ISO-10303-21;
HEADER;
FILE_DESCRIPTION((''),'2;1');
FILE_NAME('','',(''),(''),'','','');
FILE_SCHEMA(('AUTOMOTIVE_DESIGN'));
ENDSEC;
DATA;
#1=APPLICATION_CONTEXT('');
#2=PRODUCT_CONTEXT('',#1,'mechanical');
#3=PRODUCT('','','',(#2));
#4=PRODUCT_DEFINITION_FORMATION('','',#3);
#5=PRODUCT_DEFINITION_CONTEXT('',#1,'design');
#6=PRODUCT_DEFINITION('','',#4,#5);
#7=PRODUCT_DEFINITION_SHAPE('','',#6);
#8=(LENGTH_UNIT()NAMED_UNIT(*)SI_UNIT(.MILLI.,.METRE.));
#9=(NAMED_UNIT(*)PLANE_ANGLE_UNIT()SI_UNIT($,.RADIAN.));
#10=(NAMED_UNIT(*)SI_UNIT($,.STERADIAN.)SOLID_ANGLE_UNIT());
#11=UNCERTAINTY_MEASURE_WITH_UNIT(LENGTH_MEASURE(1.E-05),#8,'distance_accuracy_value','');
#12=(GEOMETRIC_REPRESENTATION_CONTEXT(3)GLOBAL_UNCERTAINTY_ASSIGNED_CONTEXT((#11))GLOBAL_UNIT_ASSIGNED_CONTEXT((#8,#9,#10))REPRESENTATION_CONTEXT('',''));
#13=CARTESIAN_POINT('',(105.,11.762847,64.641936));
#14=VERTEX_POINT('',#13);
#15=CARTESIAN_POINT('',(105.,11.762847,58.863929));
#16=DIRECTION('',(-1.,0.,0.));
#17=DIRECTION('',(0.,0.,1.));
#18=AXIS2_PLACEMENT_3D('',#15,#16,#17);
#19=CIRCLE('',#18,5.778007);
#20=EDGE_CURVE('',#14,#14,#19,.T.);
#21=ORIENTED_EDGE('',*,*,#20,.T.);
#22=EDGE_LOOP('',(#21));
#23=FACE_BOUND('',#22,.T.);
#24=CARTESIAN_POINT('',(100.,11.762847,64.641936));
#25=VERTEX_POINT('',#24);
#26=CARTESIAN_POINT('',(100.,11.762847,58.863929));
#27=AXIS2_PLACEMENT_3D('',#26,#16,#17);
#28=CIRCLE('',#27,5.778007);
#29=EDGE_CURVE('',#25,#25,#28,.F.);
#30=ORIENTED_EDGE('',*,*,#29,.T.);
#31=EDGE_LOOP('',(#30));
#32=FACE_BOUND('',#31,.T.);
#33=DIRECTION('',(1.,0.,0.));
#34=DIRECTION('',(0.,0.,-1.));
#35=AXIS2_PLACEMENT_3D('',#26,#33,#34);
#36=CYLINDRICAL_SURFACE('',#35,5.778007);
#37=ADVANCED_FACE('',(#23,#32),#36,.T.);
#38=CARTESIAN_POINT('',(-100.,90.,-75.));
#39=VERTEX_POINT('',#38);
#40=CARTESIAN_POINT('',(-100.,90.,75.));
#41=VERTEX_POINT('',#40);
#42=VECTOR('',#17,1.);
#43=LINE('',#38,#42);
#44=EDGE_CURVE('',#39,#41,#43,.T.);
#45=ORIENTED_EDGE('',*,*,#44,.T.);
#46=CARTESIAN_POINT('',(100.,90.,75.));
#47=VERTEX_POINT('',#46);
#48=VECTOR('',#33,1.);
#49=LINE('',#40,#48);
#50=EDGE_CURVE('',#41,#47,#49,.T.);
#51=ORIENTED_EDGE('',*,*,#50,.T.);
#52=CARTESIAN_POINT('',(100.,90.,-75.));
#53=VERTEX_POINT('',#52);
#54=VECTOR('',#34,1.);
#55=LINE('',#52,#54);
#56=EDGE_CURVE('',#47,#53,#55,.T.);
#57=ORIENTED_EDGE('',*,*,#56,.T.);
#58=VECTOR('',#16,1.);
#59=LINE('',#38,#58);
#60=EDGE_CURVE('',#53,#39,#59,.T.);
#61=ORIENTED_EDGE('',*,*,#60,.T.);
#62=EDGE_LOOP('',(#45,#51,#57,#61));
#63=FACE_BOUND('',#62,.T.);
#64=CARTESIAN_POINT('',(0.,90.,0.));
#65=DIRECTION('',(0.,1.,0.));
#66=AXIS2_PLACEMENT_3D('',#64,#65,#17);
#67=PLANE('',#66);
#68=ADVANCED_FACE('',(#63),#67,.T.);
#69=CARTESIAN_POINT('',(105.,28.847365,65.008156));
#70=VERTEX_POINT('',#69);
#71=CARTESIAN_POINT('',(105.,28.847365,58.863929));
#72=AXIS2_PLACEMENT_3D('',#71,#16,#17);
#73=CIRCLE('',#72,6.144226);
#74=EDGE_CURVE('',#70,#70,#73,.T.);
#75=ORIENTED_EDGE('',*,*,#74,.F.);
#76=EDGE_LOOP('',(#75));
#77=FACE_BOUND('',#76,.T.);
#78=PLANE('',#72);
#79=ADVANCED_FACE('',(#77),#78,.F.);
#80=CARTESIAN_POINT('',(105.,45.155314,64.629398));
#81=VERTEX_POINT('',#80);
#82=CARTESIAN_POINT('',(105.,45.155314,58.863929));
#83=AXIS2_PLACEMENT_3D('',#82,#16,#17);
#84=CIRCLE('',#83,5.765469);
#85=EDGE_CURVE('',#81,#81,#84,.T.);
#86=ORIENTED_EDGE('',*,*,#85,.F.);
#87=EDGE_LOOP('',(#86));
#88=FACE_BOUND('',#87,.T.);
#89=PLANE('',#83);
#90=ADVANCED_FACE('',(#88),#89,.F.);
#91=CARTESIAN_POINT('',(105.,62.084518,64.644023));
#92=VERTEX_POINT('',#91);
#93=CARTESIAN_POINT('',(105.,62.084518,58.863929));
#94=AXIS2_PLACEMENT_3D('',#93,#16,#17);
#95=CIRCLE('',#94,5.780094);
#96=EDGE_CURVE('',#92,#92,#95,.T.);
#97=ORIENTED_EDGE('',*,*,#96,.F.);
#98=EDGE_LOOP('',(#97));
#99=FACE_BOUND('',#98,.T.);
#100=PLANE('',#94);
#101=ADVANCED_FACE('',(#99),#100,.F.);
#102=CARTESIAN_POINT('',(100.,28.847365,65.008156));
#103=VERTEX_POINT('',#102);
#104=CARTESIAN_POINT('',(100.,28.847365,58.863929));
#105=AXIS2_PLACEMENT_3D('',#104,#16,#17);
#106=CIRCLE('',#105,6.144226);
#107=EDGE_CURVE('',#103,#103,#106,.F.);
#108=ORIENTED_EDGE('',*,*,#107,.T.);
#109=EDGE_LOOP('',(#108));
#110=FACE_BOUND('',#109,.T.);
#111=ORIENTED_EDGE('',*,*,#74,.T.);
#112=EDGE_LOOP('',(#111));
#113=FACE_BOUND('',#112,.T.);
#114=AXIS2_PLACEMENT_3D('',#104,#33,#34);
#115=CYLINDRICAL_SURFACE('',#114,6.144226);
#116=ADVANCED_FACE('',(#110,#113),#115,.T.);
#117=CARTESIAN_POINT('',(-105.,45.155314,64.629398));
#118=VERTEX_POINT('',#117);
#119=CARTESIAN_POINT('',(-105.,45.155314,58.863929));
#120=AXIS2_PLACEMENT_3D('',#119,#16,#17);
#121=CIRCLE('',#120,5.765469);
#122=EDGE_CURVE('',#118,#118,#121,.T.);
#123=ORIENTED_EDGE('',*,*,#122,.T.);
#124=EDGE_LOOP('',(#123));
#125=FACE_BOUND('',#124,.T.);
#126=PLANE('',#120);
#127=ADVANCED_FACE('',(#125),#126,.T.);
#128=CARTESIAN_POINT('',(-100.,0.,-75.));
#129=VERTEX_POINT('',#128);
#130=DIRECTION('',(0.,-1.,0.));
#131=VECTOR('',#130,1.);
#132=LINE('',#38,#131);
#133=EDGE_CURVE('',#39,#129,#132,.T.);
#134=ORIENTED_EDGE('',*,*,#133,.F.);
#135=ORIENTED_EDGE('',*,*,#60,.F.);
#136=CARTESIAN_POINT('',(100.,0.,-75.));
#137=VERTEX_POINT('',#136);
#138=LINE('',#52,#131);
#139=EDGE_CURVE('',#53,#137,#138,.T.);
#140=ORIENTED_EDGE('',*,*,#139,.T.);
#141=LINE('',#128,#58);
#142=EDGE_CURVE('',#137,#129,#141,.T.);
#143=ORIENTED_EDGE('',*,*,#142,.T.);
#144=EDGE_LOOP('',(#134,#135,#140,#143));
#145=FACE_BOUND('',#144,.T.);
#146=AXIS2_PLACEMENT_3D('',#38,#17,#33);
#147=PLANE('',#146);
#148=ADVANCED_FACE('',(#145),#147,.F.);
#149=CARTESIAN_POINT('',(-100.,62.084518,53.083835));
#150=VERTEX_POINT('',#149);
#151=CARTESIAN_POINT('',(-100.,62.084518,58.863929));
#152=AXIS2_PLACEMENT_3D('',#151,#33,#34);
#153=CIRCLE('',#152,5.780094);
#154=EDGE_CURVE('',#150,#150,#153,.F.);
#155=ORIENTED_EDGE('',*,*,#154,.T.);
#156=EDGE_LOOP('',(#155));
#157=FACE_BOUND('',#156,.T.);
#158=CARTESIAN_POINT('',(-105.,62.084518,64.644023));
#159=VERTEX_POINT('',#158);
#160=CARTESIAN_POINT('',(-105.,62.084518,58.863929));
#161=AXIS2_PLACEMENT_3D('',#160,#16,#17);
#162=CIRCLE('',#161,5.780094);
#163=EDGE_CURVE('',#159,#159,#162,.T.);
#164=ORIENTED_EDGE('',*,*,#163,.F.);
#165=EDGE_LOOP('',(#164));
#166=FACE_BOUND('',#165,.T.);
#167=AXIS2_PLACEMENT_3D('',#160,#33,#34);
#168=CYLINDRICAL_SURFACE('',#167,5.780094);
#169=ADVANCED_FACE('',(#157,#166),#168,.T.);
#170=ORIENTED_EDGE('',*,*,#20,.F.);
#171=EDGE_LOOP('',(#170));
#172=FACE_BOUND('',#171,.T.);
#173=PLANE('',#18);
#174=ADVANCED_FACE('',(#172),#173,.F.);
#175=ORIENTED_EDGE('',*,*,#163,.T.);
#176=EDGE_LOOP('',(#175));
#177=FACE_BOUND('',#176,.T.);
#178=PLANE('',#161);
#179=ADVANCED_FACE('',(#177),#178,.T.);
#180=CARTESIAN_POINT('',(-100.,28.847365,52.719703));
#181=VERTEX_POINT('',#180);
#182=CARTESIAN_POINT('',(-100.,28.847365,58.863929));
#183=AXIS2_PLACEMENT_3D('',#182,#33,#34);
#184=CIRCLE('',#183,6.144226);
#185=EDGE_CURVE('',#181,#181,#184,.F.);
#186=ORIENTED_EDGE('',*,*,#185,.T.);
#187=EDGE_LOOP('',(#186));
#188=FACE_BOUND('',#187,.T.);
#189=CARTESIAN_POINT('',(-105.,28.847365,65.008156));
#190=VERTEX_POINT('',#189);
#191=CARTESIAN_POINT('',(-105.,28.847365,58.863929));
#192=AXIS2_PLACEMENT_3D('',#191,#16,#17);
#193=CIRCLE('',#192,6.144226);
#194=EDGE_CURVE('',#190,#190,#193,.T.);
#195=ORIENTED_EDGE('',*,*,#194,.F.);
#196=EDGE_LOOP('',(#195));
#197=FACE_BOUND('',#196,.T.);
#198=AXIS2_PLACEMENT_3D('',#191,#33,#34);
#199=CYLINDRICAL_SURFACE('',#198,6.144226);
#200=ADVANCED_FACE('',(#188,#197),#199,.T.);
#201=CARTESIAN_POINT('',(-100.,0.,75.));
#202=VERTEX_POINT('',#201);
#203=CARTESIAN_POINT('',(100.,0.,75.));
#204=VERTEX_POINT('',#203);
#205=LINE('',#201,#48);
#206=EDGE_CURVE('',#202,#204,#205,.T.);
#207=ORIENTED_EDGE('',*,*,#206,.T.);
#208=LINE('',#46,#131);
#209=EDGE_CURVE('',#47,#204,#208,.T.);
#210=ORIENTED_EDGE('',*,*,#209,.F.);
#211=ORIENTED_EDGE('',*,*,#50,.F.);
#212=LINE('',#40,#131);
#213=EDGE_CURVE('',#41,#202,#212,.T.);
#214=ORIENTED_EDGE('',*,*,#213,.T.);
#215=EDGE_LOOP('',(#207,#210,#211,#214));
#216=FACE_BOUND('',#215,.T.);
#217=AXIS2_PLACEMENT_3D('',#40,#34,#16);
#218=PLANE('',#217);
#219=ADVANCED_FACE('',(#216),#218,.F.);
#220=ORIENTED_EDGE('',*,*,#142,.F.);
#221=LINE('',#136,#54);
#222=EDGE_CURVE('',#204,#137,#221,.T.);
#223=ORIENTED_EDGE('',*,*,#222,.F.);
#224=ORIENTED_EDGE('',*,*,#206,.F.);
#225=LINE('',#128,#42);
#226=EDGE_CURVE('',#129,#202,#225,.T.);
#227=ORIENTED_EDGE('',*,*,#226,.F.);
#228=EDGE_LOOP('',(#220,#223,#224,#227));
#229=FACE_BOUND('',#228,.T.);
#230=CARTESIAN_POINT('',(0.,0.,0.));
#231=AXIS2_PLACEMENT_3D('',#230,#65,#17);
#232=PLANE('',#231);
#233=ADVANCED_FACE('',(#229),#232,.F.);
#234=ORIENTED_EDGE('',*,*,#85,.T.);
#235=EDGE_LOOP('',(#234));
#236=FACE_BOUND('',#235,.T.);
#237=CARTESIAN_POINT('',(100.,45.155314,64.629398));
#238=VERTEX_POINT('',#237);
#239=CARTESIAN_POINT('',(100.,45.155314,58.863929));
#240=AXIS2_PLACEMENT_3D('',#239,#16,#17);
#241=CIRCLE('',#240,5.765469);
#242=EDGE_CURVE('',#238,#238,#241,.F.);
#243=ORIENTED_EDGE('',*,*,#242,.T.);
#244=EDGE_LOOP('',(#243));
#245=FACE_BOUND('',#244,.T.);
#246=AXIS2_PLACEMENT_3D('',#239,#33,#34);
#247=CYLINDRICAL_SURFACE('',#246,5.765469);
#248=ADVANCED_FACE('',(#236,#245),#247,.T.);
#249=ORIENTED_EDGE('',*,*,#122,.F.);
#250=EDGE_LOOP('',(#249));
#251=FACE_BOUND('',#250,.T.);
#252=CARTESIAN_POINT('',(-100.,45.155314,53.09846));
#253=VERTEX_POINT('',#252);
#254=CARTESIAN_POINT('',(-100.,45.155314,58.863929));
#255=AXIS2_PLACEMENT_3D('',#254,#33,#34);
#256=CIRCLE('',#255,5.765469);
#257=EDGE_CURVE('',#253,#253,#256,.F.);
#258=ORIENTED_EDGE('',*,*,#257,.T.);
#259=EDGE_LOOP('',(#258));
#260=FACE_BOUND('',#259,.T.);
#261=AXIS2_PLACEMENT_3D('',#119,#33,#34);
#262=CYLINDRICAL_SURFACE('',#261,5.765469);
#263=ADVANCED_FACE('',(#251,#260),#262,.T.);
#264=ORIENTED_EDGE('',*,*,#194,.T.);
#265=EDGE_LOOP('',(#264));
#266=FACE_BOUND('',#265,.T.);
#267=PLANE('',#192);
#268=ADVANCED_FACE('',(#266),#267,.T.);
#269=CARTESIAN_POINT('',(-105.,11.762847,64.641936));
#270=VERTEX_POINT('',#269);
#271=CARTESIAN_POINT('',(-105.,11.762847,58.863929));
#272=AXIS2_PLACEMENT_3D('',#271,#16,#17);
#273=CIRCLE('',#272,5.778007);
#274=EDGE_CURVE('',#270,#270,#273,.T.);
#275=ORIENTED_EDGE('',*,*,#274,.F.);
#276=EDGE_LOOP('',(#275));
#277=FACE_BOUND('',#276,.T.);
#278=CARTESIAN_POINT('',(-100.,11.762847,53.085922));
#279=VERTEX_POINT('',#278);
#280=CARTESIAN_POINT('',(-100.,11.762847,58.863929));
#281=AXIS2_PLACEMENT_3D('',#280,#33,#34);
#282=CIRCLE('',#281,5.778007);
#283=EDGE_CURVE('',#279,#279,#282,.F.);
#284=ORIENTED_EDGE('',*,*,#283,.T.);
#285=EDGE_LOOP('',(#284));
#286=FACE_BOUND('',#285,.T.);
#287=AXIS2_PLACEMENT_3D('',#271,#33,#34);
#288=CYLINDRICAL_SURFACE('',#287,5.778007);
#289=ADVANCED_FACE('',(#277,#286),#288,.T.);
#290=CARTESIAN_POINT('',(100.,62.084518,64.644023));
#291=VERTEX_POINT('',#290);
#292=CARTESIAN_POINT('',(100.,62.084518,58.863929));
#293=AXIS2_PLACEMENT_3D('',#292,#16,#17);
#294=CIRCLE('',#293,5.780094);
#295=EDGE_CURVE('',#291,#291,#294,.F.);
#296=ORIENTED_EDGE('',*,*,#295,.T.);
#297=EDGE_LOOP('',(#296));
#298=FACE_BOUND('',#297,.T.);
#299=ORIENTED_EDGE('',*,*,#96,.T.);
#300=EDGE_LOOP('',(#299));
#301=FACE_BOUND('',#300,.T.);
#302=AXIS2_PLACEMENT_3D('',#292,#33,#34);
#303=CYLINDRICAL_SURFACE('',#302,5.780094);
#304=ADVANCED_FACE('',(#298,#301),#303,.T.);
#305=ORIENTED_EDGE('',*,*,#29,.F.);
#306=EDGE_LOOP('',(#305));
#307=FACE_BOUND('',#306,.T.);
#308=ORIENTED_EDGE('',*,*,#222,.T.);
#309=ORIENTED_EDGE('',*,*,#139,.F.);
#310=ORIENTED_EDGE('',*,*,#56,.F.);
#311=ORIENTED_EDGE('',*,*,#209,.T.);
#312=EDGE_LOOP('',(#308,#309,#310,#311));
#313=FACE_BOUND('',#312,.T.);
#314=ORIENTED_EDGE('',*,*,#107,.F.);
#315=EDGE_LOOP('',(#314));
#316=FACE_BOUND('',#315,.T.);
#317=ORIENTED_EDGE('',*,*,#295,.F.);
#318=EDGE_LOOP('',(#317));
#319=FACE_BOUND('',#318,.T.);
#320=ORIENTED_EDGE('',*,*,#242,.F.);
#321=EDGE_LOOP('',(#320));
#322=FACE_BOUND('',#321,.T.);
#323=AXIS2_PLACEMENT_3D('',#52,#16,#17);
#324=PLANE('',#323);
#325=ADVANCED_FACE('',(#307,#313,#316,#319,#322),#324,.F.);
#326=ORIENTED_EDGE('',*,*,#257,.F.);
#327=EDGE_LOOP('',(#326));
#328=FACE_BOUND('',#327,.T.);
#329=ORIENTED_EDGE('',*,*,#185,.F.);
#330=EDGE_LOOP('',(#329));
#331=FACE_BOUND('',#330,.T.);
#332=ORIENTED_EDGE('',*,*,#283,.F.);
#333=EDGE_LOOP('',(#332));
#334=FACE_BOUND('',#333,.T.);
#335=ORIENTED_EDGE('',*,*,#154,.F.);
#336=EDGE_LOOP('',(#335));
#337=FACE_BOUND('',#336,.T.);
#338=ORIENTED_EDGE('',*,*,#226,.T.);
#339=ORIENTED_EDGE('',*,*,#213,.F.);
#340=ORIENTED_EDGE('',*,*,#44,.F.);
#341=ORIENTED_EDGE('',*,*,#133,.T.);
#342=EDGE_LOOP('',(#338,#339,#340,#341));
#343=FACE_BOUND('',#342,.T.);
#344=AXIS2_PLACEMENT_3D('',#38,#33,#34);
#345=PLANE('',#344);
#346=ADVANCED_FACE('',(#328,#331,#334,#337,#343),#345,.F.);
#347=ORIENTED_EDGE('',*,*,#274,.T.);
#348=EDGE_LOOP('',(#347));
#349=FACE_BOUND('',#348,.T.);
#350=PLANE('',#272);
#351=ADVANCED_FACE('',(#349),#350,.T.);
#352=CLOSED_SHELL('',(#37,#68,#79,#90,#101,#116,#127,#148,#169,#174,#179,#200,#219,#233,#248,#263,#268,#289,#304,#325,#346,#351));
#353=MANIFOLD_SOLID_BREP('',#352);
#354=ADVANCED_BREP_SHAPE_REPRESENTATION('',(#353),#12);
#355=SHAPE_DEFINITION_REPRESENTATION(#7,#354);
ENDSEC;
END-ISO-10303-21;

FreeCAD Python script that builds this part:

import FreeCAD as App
import Part
import Sketcher

V = App.Vector


def add_polygon(sketch, points):
    """Adds a closed chain of lines whose ends are joined by coincident constraints."""
    first, n = sketch.GeometryCount, len(points)
    for a, b in zip(points, points[1:] + points[:1]):
        sketch.addGeometry(Part.LineSegment(App.Vector(*a, 0), App.Vector(*b, 0)), False)
    for i in range(n):
        sketch.addConstraint(Sketcher.Constraint("Coincident", first + i, 2, first + (i + 1) % n, 1))

doc = App.newDocument("Part")
params = doc.addObject("Spreadsheet::Sheet", "Params")
for row, (alias, value) in enumerate([
    ("sketch1_width", "200 mm"),
    ("sketch1_height", "150 mm"),
    ("pad1_length", "90 mm"),
    ("pad2_length", "5 mm"),
    ("pad3_length", "5 mm"),
], start=1):
    params.set(f"A{row}", alias)
    params.set(f"B{row}", "=" + value)
    params.setAlias(f"B{row}", alias)

body = doc.addObject("PartDesign::Body", "Body")

# Sketch on XZ plane
sketch1 = body.newObject("Sketcher::SketchObject", "Sketch")
sketch1.AttachmentSupport = (doc.getObject("XZ_Plane"), [""])
sketch1.MapMode = "FlatFace"
add_polygon(sketch1, [(-100, -75), (-100, 75), (100, 75), (100, -75)])  # lines 0-3
sketch1.addConstraint([
    Sketcher.Constraint("Vertical", 0),
    Sketcher.Constraint("Horizontal", 1),
    Sketcher.Constraint("Vertical", 2),
    Sketcher.Constraint("Horizontal", 3),
    Sketcher.Constraint("Symmetric", 0, 2, 2, 2, -1, 1),
    Sketcher.Constraint("DistanceX", 1, 1, 1, 2, 200.0),
    Sketcher.Constraint("DistanceY", 0, 1, 0, 2, 150.0),
])
sketch1.setExpression("Constraints[9]", "Params.sketch1_width")
sketch1.setExpression("Constraints[10]", "Params.sketch1_height")
pad1 = body.newObject("PartDesign::Pad", "Pad")
pad1.Profile = sketch1
pad1.setExpression("Length", "Params.pad1_length")
pad1.Reversed = True

# Sketch on YZ plane
sketch2 = body.newObject("Sketcher::SketchObject", "Sketch001")
sketch2.AttachmentSupport = (doc.getObject("YZ_Plane"), [""])
sketch2.MapMode = "FlatFace"
sketch2.AttachmentOffset = App.Placement(V(0, 0, -100), App.Rotation())
sketch2.addGeometry([
    Part.Circle(V(11.762847, 58.863929, 0), V(0, 0, 1), 5.778007),
    Part.Circle(V(28.847365, 58.863929, 0), V(0, 0, 1), 6.144226),
    Part.Circle(V(45.155314, 58.863929, 0), V(0, 0, 1), 5.765469),
    Part.Circle(V(62.084518, 58.863929, 0), V(0, 0, 1), 5.780094),
], False)
sketch2.addConstraint([
    Sketcher.Constraint("Horizontal", 0, 3, 1, 3),
    Sketcher.Constraint("Horizontal", 1, 3, 2, 3),
    Sketcher.Constraint("Horizontal", 2, 3, 3, 3),
    Sketcher.Constraint("Diameter", 2, 11.530938),
    Sketcher.Constraint("Diameter", 3, 11.560189),
    Sketcher.Constraint("Diameter", 0, 11.556015),
    Sketcher.Constraint("Diameter", 1, 12.288453),
    Sketcher.Constraint("DistanceY", -1, 1, 0, 3, 58.863929),
    Sketcher.Constraint("DistanceX", 1, 3, 2, 3, 16.307949),
    Sketcher.Constraint("DistanceX", 0, 3, 3, 3, 50.32167),
    Sketcher.Constraint("DistanceX", -1, 1, 0, 3, 11.762847),
    Sketcher.Constraint("DistanceX", -1, 1, 1, 3, 28.847365),
])
pad2 = body.newObject("PartDesign::Pad", "Pad001")
pad2.Profile = sketch2
pad2.setExpression("Length", "Params.pad2_length")
pad2.Reversed = True

# Sketch on YZ plane
sketch3 = body.newObject("Sketcher::SketchObject", "Sketch002")
sketch3.AttachmentSupport = (doc.getObject("YZ_Plane"), [""])
sketch3.MapMode = "FlatFace"
sketch3.AttachmentOffset = App.Placement(V(0, 0, 105), App.Rotation())
sketch3.addGeometry([
    Part.Circle(V(11.762847, 58.863929, 0), V(0, 0, 1), 5.778007),
    Part.Circle(V(28.847365, 58.863929, 0), V(0, 0, 1), 6.144226),
    Part.Circle(V(45.155314, 58.863929, 0), V(0, 0, 1), 5.765469),
    Part.Circle(V(62.084518, 58.863929, 0), V(0, 0, 1), 5.780094),
], False)
sketch3.addConstraint([
    Sketcher.Constraint("Horizontal", 0, 3, 1, 3),
    Sketcher.Constraint("Horizontal", 1, 3, 2, 3),
    Sketcher.Constraint("Horizontal", 2, 3, 3, 3),
    Sketcher.Constraint("Diameter", 2, 11.530938),
    Sketcher.Constraint("Diameter", 3, 11.560189),
    Sketcher.Constraint("Diameter", 0, 11.556015),
    Sketcher.Constraint("Diameter", 1, 12.288453),
    Sketcher.Constraint("DistanceY", -1, 1, 0, 3, 58.863929),
    Sketcher.Constraint("DistanceX", 1, 3, 2, 3, 16.307949),
    Sketcher.Constraint("DistanceX", 0, 3, 3, 3, 50.32167),
    Sketcher.Constraint("DistanceX", -1, 1, 0, 3, 11.762847),
    Sketcher.Constraint("DistanceX", -1, 1, 1, 3, 28.847365),
])
pad3 = body.newObject("PartDesign::Pad", "Pad002")
pad3.Profile = sketch3
pad3.setExpression("Length", "Params.pad3_length")
pad3.Reversed = True

doc.recompute()
